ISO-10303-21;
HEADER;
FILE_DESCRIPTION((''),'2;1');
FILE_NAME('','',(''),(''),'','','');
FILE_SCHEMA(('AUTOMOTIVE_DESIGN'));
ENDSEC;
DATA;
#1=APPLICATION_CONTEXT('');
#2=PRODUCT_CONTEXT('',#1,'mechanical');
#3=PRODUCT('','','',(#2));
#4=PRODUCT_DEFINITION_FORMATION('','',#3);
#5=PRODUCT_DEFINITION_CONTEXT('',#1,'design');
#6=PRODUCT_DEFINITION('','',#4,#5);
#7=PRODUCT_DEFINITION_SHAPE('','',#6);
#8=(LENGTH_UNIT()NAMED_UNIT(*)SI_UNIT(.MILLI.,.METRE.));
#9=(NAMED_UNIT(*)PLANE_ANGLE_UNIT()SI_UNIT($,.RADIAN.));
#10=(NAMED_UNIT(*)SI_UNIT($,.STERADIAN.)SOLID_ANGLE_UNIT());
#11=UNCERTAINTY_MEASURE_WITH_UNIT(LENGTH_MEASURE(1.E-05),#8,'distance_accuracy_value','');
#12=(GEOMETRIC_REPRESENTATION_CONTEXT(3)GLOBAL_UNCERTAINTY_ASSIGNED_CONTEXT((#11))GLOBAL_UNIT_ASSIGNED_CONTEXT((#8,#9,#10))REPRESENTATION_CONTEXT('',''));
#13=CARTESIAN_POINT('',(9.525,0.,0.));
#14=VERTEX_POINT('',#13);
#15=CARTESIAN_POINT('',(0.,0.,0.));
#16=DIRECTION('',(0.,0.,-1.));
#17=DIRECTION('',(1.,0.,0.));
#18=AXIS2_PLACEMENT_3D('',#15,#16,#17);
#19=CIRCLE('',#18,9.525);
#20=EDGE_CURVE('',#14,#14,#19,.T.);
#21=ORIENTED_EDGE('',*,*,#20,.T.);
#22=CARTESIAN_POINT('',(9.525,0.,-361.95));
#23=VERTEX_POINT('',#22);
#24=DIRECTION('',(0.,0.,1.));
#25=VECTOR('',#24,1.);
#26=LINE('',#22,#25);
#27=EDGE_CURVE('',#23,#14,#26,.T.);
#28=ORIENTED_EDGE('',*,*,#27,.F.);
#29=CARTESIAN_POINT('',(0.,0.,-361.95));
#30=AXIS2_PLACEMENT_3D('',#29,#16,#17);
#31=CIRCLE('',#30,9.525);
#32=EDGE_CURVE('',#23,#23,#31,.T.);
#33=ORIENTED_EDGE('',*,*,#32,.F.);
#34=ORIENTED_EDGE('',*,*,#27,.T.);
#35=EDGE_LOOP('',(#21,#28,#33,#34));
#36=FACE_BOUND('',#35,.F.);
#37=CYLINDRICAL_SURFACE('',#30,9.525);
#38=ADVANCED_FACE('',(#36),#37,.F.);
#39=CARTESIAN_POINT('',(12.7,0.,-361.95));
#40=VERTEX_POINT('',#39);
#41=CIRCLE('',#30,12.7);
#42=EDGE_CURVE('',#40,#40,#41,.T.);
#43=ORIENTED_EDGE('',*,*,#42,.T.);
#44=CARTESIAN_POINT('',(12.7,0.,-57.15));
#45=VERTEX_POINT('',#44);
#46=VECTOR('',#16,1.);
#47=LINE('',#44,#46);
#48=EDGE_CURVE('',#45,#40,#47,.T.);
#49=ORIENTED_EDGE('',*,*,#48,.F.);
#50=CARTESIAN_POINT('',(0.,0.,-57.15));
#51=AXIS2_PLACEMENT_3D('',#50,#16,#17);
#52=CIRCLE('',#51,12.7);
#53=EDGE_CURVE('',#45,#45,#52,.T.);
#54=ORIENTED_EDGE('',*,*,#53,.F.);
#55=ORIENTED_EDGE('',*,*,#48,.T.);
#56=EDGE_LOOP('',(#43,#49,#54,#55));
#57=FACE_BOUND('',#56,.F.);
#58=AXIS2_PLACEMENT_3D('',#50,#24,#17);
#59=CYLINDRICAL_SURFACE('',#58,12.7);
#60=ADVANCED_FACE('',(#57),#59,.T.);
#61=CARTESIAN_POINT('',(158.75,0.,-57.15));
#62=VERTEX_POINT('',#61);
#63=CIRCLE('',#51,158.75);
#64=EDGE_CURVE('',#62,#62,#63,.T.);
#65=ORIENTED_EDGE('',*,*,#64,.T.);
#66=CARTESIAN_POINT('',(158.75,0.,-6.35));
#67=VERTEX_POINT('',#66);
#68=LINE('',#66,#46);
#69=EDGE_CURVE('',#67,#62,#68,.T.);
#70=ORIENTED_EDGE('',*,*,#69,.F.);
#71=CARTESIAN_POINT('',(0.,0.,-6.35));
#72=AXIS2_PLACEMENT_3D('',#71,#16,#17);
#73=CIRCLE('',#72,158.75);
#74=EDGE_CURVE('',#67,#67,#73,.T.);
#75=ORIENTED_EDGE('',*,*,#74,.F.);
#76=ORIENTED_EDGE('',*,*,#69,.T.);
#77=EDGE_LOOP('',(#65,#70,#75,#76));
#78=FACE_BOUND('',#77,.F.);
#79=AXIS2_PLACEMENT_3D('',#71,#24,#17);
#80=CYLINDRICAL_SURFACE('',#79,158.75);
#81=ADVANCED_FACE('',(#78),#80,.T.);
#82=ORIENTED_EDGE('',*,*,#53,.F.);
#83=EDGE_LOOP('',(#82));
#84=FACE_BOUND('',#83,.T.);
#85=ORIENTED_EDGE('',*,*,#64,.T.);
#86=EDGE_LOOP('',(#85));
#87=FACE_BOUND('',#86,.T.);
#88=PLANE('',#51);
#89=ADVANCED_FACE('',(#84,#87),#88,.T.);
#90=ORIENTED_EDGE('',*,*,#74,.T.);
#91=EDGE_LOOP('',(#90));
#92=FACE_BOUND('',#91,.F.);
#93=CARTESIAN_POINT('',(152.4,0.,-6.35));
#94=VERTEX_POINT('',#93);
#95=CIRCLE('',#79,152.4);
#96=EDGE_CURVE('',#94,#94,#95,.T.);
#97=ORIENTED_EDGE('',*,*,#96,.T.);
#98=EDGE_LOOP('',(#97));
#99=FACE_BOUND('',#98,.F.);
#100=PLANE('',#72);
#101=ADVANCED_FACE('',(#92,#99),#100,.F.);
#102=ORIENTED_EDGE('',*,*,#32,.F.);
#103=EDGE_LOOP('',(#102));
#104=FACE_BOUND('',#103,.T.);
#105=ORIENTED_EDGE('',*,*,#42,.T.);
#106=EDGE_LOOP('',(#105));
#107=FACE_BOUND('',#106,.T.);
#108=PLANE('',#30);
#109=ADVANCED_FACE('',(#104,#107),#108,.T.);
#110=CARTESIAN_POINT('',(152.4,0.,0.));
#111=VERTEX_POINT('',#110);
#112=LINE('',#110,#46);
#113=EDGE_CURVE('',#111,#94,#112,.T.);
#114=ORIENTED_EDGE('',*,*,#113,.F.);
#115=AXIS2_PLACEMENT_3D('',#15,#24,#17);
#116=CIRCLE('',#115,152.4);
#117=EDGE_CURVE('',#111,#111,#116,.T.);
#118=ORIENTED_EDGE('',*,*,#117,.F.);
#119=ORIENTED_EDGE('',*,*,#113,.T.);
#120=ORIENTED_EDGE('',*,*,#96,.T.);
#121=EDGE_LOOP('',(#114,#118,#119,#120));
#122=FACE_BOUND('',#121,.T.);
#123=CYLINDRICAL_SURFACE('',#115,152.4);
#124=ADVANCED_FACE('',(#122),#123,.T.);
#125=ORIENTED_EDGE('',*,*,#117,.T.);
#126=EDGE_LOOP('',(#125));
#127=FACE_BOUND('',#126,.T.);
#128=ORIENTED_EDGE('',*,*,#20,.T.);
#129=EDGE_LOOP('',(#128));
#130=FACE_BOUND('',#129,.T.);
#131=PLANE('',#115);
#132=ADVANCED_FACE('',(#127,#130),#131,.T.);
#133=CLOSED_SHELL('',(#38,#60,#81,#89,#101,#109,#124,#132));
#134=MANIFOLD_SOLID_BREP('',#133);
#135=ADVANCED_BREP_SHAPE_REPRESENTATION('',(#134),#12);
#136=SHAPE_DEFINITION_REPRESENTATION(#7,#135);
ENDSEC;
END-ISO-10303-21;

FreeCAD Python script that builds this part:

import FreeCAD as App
import Part
import Sketcher
from FreeCAD import Vector
Q = App.Units.Quantity

doc = App.newDocument("Part")
body = doc.addObject("PartDesign::Body", "Body")

sketch1 = body.newObject("Sketcher::SketchObject", "Sketch")
sketch1.AttachmentSupport = (doc.getObject("XY_Plane"), [""])
sketch1.MapMode = "FlatFace"
sketch1.addGeometry(Part.Circle(Vector(0, 0, 0), Vector(0, 0, 1), 152.4), False)
sketch1.addConstraint([
    Sketcher.Constraint("Coincident", 0, 3, -1, 1),
    Sketcher.Constraint("Diameter", 0, Q("12 in")),
])
pad1 = body.newObject("PartDesign::Pad", "Pad")
pad1.Profile = sketch1
pad1.Length = Q("0.25 in")
pad1.Reversed = True

sketch2 = body.newObject("Sketcher::SketchObject", "Sketch001")
sketch2.AttachmentSupport = (doc.getObject("XY_Plane"), [""])
sketch2.MapMode = "FlatFace"
sketch2.AttachmentOffset = App.Placement(Vector(0, 0, -0.25 * 25.4), App.Rotation())
sketch2.addGeometry(Part.Circle(Vector(0, 0, 0), Vector(0, 0, 1), 158.75), False)
sketch2.addConstraint([
    Sketcher.Constraint("Coincident", 0, 3, -1, 1),
    Sketcher.Constraint("Diameter", 0, Q("12.5 in")),
])
pad2 = body.newObject("PartDesign::Pad", "Pad001")
pad2.Profile = sketch2
pad2.Length = Q("2 in")
pad2.Reversed = True

sketch3 = body.newObject("Sketcher::SketchObject", "Sketch002")
sketch3.AttachmentSupport = (doc.getObject("XY_Plane"), [""])
sketch3.MapMode = "FlatFace"
sketch3.addGeometry(Part.Circle(Vector(0, 0, 0), Vector(0, 0, 1), 6.35), False)
sketch3.addConstraint([
    Sketcher.Constraint("Coincident", 0, 3, -1, 1),
    Sketcher.Constraint("Diameter", 0, Q("0.5 in")),
])
pocket1 = body.newObject("PartDesign::Pocket", "Pocket")
pocket1.Profile = sketch3
pocket1.Type = "ThroughAll"

sketch4 = body.newObject("Sketcher::SketchObject", "Sketch003")
sketch4.AttachmentSupport = (doc.getObject("XY_Plane"), [""])
sketch4.MapMode = "FlatFace"
sketch4.AttachmentOffset = App.Placement(Vector(0, 0, -2.25 * 25.4), App.Rotation())
sketch4.addGeometry(Part.Circle(Vector(0, 0, 0), Vector(0, 0, 1), 12.7), False)
sketch4.addConstraint([
    Sketcher.Constraint("Coincident", 0, 3, -1, 1),
    Sketcher.Constraint("Diameter", 0, Q("1 in")),
])
pad3 = body.newObject("PartDesign::Pad", "Pad002")
pad3.Profile = sketch4
pad3.Length = Q("12 in")
pad3.Reversed = True

sketch5 = body.newObject("Sketcher::SketchObject", "Sketch004")
sketch5.AttachmentSupport = (doc.getObject("XY_Plane"), [""])
sketch5.MapMode = "FlatFace"
sketch5.AttachmentOffset = App.Placement(Vector(0, 0, -14.25 * 25.4), App.Rotation())
sketch5.addGeometry(Part.Circle(Vector(0, 0, 0), Vector(0, 0, 1), 9.525), False)
sketch5.addConstraint([
    Sketcher.Constraint("Coincident", 0, 3, -1, 1),
    Sketcher.Constraint("Diameter", 0, Q("0.75 in")),
])
pocket2 = body.newObject("PartDesign::Pocket", "Pocket001")
pocket2.Profile = sketch5
pocket2.Type = "ThroughAll"
pocket2.Reversed = True

doc.recompute()
